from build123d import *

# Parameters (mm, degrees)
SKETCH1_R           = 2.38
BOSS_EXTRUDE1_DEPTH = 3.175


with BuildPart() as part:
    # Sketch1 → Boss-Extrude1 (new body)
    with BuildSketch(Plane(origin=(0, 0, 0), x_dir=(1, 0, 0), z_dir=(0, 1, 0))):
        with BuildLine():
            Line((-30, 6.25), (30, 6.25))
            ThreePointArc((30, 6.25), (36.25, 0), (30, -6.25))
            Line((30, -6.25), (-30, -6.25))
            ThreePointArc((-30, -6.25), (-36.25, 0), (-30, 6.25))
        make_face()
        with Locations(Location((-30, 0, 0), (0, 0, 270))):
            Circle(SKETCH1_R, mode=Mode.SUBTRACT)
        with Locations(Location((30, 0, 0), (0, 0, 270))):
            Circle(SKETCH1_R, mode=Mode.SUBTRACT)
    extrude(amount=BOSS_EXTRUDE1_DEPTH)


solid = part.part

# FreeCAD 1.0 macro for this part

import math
import FreeCAD as App
import Part
import Sketcher
from FreeCAD import Vector

doc = App.newDocument("Part")
params = doc.addObject("Spreadsheet::Sheet", "Params")
for row, (alias, value) in enumerate([
    ("sketch1_diameter", "4.76 mm"),
    ("sketch1_width", "60 mm"),
    ("sketch1_radius", "6.25 mm"),
    ("pad1_length", "3.175 mm"),
], start=1):
    params.set(f"A{row}", alias)
    params.set(f"B{row}", "=" + value)
    params.setAlias(f"B{row}", alias)

body = doc.addObject("PartDesign::Body", "Body")

# Sketch on XZ plane
sketch1 = doc.addObject("Sketcher::SketchObject", "Sketch")
body.addObject(sketch1)
sketch1.AttachmentSupport = (doc.XZ_Plane, [""])
sketch1.MapMode = "FlatFace"
sketch1.addGeometry([
    Part.LineSegment(Vector(30, -6.2, 0), Vector(-30, -6.2, 0)),  # 0
    Part.ArcOfCircle(Part.Circle(Vector(-30, 0, 0), Vector(0, 0, 1), 6.2), math.radians(90), math.radians(270)),  # 1
    Part.LineSegment(Vector(-30, 6.2, 0), Vector(30, 6.2, 0)),  # 2
    Part.ArcOfCircle(Part.Circle(Vector(30, 0, 0), Vector(0, 0, 1), 6.2), math.radians(-90), math.radians(90)),  # 3
    Part.Circle(Vector(30, 0, 0), Vector(0, 0, 1), 2.4),  # 4
    Part.Circle(Vector(-30, 0, 0), Vector(0, 0, 1), 2.4),  # 5
], False)
sketch1.addConstraint([
    Sketcher.Constraint("Tangent", 0, 2, 1, 2),
    Sketcher.Constraint("Tangent", 1, 1, 2, 1),
    Sketcher.Constraint("Tangent", 2, 2, 3, 2),
    Sketcher.Constraint("Tangent", 3, 1, 0, 1),
    Sketcher.Constraint("Horizontal", 0),
    Sketcher.Constraint("Horizontal", 2),
    Sketcher.Constraint("Coincident", 4, 3, 3, 3),
    Sketcher.Constraint("Coincident", 5, 3, 1, 3),
    Sketcher.Constraint("Equal", 4, 5),
    Sketcher.Constraint("Symmetric", 1, 3, 3, 3, -1, 1),
    Sketcher.Constraint("Diameter", 4, 4.76),
    Sketcher.Constraint("DistanceX", 0, 2, 0, 1, 60.0),
    Sketcher.Constraint("Radius", 1, 6.25),
])
sketch1.setExpression("Constraints[10]", "Params.sketch1_diameter")
sketch1.setExpression("Constraints[11]", "Params.sketch1_width")
sketch1.setExpression("Constraints[12]", "Params.sketch1_radius")
pad1 = doc.addObject("PartDesign::Pad", "Pad")
body.addObject(pad1)
pad1.Profile = sketch1
pad1.setExpression("Length", "Params.pad1_length")
pad1.Reversed = True

doc.recompute()
